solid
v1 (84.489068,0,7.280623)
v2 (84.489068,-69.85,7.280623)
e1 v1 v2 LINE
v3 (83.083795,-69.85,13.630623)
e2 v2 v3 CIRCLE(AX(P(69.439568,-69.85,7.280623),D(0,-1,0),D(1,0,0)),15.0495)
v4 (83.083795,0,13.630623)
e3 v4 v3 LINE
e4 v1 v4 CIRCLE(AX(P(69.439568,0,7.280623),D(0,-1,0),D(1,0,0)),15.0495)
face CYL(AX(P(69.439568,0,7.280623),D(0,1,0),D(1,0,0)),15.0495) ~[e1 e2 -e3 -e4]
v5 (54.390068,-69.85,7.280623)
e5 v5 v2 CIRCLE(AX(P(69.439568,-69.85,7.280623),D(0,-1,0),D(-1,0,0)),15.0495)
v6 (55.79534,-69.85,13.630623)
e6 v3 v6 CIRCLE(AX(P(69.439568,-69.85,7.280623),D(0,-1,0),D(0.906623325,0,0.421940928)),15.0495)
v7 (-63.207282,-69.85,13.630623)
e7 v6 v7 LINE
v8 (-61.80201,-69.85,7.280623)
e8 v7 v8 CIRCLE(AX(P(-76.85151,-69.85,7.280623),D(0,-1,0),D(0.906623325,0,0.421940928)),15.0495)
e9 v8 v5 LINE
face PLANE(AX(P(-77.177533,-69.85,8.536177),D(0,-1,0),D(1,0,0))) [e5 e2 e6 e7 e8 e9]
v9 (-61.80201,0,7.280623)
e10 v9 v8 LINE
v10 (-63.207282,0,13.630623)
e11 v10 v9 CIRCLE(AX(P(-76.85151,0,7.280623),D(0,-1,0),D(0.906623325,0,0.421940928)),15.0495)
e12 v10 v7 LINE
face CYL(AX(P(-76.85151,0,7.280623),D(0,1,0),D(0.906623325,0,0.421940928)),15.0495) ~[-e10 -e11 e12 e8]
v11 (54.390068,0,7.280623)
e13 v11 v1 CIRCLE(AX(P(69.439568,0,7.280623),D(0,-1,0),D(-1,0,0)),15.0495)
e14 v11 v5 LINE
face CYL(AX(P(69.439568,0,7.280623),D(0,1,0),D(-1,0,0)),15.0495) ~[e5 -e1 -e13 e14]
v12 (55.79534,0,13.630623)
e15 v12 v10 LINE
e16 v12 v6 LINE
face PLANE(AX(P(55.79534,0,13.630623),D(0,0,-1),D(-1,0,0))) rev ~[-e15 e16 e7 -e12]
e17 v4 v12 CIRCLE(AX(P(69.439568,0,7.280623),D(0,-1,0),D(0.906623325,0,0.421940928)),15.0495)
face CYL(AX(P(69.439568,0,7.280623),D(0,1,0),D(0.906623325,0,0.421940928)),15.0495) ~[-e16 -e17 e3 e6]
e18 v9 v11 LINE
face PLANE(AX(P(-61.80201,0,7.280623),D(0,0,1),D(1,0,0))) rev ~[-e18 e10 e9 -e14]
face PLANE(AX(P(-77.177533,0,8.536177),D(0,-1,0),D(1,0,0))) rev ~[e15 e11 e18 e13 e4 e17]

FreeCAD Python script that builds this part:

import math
import FreeCAD as App
import Part
import Sketcher

V = App.Vector
Q = App.Units.Quantity

doc = App.newDocument("Part")
body = doc.addObject("PartDesign::Body", "Body")

# Sketch on XZ plane
sketch1 = body.newObject("Sketcher::SketchObject", "Sketch")
sketch1.AttachmentSupport = (doc.getObject("XZ_Plane"), [""])
sketch1.MapMode = "FlatFace"
sketch1.addGeometry([
    Part.ArcOfCircle(Part.Circle(V(-77, 7, 0), V(0, 0, 1), 15), math.radians(25), math.radians(360)),  # 0
    Part.LineSegment(V(-62, 7, 0), V(54, 7, 0)),  # 1
    Part.ArcOfCircle(Part.Circle(V(69, 7, 0), V(0, 0, 1), 15), math.radians(180), math.radians(360)),  # 2
    Part.ArcOfCircle(Part.Circle(V(69, 7, 0), V(0, 0, 1), 15), math.radians(0), math.radians(25)),  # 3
    Part.ArcOfCircle(Part.Circle(V(69, 7, 0), V(0, 0, 1), 15), math.radians(25), math.radians(155)),  # 4
    Part.LineSegment(V(56, 14, 0), V(-63, 14, 0)),  # 5
], False)
sketch1.addConstraint([
    Sketcher.Constraint("Coincident", 0, 2, 1, 1),
    Sketcher.Constraint("Coincident", 1, 2, 2, 1),
    Sketcher.Constraint("Tangent", 2, 2, 3, 1),
    Sketcher.Constraint("Tangent", 3, 2, 4, 1),
    Sketcher.Constraint("Coincident", 4, 2, 5, 1),
    Sketcher.Constraint("Coincident", 5, 2, 0, 1),
    Sketcher.Constraint("Horizontal", 1),
    Sketcher.Constraint("Horizontal", 5),
    Sketcher.Constraint("Coincident", 4, 3, 2, 3),
    Sketcher.Constraint("Equal", 0, 2),
    Sketcher.Constraint("Horizontal", 0, 3, 2, 3),
    Sketcher.Constraint("Horizontal", 4, 3, 0, 2),
    Sketcher.Constraint("Horizontal", 1, 2, 2, 2),
    Sketcher.Constraint("Horizontal", 3, 2, 4, 2),
    Sketcher.Constraint("Radius", 0, Q("0.5925 in")),
    Sketcher.Constraint("DistanceY", 2, 2, 3, 2, Q("0.25 in")),
    Sketcher.Constraint("DistanceX", 5, 2, 5, 1, Q("119.002622 mm")),
    Sketcher.Constraint("DistanceX", 0, 3, -1, 1, Q("76.85151 mm")),
    Sketcher.Constraint("DistanceY", -1, 1, 0, 3, Q("7.280623 mm")),
])
pad1 = body.newObject("PartDesign::Pad", "Pad")
pad1.Profile = sketch1
pad1.Length = Q("2.75 in")

doc.recompute()
